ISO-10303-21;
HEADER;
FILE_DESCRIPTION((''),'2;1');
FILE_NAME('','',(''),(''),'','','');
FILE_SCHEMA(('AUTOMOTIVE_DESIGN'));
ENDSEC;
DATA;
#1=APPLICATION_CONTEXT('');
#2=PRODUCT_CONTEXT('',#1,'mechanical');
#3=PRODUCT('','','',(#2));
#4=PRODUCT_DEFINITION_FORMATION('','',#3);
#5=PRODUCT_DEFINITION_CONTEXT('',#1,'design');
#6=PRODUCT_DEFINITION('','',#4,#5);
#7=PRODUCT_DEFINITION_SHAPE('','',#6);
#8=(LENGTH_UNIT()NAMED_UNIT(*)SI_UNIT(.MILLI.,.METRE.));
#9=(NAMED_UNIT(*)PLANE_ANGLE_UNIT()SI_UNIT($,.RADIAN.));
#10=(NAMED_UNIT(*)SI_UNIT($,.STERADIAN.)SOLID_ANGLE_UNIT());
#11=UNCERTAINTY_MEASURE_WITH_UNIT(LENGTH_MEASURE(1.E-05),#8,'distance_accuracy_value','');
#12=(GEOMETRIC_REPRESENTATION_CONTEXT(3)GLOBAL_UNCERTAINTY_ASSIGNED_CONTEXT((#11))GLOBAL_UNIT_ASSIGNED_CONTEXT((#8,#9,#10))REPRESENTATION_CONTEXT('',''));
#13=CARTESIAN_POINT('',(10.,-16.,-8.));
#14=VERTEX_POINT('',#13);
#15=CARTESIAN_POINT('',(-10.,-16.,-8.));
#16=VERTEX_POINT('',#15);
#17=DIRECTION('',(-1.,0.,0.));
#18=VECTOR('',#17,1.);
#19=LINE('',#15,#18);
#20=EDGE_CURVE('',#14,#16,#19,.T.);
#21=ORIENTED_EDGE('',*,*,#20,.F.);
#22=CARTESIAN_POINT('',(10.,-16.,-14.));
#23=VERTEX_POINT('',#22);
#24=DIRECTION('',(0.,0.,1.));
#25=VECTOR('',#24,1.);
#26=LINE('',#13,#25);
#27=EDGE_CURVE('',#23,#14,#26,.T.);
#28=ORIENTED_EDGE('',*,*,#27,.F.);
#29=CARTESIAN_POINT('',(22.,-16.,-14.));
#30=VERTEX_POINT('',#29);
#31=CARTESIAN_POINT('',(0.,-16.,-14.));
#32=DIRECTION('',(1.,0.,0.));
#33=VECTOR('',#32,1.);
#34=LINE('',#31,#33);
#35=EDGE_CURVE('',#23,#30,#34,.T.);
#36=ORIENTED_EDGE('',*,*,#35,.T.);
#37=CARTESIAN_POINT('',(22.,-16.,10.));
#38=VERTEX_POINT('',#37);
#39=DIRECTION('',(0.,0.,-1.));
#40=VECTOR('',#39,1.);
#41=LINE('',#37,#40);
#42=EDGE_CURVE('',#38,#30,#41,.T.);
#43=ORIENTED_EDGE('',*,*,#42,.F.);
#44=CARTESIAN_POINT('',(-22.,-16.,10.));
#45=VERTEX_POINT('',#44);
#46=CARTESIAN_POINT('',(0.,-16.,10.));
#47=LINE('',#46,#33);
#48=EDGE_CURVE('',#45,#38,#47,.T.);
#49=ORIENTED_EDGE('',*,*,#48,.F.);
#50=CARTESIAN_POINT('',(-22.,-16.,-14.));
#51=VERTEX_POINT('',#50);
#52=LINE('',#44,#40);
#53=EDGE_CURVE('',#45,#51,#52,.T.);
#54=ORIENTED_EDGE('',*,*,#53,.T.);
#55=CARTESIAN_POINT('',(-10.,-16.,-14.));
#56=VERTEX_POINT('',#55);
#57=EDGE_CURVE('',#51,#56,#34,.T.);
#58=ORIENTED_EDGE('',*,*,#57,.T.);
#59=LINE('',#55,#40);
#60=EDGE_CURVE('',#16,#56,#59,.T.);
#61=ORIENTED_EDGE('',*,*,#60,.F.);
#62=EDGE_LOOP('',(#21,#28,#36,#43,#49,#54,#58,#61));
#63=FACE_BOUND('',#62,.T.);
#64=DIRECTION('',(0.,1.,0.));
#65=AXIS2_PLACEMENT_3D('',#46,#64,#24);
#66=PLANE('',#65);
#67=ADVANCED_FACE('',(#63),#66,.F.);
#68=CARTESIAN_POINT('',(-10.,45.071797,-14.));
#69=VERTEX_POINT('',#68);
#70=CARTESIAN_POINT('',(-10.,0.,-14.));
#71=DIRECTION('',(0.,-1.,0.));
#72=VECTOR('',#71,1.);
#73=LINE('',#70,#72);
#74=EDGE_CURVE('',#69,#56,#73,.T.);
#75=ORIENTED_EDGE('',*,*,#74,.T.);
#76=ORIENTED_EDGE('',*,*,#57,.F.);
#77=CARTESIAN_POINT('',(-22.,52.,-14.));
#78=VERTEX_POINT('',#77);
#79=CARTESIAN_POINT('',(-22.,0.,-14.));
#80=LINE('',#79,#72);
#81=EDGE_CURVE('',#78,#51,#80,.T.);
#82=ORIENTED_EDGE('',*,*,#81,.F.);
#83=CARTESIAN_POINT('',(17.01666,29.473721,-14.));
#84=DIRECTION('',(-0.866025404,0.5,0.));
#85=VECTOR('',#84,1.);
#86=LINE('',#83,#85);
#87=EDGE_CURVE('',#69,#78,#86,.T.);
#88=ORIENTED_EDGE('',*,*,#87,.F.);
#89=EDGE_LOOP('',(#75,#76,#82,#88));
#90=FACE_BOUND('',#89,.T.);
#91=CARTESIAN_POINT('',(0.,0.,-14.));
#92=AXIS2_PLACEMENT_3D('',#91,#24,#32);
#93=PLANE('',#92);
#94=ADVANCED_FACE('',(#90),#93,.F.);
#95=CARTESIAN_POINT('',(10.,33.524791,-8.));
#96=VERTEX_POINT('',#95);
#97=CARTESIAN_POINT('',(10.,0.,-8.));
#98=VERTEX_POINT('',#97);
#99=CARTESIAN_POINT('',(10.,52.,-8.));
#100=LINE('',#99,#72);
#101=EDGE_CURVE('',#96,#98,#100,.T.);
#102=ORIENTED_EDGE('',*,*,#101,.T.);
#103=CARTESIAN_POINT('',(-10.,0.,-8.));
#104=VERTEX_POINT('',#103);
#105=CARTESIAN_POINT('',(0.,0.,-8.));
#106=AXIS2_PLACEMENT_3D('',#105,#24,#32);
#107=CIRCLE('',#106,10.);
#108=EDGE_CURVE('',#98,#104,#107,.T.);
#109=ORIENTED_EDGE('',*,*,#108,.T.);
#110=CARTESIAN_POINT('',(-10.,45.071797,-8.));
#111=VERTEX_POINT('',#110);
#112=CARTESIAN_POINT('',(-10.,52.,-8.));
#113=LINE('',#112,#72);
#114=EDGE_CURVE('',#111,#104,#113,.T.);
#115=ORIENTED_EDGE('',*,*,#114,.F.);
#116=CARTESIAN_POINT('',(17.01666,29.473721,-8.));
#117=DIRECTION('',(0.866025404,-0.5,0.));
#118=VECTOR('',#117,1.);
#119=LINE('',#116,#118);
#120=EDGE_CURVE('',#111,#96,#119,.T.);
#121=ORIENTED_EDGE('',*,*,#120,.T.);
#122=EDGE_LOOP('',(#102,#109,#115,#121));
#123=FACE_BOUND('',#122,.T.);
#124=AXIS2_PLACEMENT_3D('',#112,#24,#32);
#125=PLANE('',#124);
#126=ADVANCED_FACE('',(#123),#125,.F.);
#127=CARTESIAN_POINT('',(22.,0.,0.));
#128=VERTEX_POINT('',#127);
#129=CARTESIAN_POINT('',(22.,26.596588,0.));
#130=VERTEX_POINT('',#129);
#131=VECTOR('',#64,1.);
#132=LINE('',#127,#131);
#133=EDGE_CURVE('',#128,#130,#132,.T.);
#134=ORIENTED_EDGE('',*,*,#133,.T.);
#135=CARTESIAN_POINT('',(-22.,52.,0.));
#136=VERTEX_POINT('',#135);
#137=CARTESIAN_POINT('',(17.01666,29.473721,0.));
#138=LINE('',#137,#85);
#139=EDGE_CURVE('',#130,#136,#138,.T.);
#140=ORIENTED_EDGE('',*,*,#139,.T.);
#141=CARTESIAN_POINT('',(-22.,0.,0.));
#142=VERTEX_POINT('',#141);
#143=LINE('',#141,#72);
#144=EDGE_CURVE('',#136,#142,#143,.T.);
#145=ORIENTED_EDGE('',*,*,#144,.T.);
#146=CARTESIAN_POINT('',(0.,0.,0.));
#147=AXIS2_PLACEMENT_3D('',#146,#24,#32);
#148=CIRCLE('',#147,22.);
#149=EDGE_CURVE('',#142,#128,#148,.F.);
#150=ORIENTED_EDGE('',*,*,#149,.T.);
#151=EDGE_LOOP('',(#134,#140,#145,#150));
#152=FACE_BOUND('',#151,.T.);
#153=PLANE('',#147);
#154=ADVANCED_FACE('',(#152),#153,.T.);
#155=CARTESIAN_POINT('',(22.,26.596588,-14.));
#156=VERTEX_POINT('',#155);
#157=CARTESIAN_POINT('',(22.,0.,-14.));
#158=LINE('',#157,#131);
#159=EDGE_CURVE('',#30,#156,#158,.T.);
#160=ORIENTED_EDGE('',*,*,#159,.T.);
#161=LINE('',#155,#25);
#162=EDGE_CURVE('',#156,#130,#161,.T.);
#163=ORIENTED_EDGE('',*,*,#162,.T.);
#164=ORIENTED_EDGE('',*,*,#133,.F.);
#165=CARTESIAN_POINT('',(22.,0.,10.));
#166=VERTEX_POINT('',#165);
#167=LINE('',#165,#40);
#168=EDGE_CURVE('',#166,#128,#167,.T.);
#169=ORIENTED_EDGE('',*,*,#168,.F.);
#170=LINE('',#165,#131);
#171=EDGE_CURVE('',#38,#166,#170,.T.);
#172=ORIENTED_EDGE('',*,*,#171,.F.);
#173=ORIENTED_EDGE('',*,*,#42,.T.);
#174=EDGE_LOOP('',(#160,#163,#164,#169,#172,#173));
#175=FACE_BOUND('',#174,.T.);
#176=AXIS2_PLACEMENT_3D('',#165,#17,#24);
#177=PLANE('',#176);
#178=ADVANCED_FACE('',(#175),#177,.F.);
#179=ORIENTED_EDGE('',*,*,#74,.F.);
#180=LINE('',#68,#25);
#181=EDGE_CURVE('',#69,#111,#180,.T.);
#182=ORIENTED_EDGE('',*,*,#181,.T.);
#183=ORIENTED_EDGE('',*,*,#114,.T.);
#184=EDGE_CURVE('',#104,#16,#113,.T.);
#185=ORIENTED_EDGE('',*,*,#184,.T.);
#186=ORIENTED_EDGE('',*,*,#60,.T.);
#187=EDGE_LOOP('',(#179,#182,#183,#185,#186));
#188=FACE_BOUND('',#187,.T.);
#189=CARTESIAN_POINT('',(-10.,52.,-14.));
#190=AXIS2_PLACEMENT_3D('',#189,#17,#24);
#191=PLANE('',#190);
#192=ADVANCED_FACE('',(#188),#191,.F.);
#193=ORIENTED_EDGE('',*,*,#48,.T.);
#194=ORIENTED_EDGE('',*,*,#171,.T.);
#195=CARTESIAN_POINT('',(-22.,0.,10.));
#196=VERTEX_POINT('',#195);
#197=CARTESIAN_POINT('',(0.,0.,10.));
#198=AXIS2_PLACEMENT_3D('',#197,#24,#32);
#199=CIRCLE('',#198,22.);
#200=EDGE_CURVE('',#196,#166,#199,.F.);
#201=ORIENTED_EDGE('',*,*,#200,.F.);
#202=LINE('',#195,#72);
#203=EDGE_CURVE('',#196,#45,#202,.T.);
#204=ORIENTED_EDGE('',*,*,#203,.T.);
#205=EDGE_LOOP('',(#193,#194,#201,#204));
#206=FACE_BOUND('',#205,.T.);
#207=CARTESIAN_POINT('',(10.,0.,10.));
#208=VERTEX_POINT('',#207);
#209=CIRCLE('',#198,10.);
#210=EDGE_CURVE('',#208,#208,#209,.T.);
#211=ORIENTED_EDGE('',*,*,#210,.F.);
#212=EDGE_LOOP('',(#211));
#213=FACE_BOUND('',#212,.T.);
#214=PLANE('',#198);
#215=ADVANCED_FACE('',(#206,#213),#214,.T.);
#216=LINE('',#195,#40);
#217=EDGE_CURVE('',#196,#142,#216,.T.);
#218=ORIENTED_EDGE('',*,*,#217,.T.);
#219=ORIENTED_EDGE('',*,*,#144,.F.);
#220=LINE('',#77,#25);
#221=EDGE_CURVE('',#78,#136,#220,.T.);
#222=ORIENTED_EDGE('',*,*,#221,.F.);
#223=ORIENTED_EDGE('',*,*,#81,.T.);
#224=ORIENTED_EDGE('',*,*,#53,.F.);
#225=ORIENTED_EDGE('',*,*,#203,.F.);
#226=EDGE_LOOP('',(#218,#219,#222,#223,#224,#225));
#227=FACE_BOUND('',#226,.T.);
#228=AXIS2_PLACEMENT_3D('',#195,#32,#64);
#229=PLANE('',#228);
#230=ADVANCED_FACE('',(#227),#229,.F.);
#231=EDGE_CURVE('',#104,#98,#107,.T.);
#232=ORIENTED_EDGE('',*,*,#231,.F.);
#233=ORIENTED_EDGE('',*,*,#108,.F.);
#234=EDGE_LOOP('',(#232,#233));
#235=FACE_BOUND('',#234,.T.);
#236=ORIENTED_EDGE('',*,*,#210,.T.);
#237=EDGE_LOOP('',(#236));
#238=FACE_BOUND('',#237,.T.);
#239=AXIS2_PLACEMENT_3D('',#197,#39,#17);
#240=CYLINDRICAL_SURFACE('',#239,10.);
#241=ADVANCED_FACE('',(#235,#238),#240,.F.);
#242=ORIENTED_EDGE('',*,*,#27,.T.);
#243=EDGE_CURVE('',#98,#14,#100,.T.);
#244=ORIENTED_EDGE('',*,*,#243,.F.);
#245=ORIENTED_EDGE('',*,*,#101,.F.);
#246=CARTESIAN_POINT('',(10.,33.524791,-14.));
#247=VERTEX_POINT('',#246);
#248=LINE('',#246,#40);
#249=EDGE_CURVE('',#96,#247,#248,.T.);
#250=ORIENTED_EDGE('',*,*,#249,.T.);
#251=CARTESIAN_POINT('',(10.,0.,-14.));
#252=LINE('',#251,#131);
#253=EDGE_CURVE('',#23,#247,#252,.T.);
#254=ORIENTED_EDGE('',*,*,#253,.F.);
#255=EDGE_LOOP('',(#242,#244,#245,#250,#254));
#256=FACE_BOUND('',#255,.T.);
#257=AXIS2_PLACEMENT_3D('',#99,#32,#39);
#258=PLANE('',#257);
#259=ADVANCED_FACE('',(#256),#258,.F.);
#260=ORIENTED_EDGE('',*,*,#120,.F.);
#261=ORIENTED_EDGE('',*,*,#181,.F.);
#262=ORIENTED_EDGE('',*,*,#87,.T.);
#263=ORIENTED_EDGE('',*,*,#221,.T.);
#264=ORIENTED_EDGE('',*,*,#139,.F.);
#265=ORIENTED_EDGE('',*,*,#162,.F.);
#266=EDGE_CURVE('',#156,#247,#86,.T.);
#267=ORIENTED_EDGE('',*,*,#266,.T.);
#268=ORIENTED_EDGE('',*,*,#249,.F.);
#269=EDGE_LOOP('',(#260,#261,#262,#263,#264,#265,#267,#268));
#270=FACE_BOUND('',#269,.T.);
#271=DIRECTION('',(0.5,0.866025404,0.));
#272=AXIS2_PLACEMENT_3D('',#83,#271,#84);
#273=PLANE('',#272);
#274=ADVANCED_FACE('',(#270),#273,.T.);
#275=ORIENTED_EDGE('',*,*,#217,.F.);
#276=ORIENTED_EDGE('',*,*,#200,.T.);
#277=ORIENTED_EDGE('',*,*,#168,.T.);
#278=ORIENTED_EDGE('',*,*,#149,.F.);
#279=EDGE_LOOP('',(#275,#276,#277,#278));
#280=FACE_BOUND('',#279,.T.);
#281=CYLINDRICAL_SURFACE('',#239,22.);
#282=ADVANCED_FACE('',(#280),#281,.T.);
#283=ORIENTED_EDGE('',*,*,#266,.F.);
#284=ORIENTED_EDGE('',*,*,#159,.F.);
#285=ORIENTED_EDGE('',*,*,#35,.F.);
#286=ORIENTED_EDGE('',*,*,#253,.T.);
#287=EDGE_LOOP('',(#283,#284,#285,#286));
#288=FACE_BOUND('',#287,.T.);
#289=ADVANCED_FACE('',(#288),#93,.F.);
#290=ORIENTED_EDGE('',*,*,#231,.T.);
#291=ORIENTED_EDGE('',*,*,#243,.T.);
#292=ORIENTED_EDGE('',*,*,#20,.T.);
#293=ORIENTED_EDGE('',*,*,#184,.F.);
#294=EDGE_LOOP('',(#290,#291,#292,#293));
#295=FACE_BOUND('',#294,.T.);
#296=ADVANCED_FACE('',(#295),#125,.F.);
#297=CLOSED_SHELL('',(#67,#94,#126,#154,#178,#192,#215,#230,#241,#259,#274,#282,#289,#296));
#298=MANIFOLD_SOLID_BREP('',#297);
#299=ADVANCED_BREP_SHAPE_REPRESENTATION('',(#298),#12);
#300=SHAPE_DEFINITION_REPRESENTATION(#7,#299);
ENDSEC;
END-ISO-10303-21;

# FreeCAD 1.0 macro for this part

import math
import FreeCAD as App
import Part
import Sketcher

V = App.Vector
Q = App.Units.Quantity


def add_polygon(sketch, points):
    """Adds a closed chain of lines whose ends are joined by coincident constraints."""
    first, n = sketch.GeometryCount, len(points)
    for a, b in zip(points, points[1:] + points[:1]):
        sketch.addGeometry(Part.LineSegment(App.Vector(*a, 0), App.Vector(*b, 0)), False)
    for i in range(n):
        sketch.addConstraint(Sketcher.Constraint("Coincident", first + i, 2, first + (i + 1) % n, 1))

doc = App.newDocument("Part")
params = doc.addObject("Spreadsheet::Sheet", "Params")
for row, (alias, value) in enumerate([
    ("sketch1_diameter", "20 mm"),
    ("sketch1_radius", "22 mm"),
    ("sketch1_height", "16 mm"),
    ("pad1_length", "10 mm"),
    ("sketch2_diameter", "20 mm"),
    ("sketch2_width", "44 mm"),
    ("sketch2_height", "68 mm"),
    ("pad2_length", "14 mm"),
    ("sketch3_width", "20 mm"),
    ("sketch3_height", "6 mm"),
], start=1):
    params.set(f"A{row}", alias)
    params.set(f"B{row}", "=" + value)
    params.setAlias(f"B{row}", alias)

body = doc.addObject("PartDesign::Body", "Body")

# Sketch on XY plane
sketch1 = body.newObject("Sketcher::SketchObject", "Sketch")
sketch1.AttachmentSupport = (doc.getObject("XY_Plane"), [""])
sketch1.MapMode = "FlatFace"
sketch1.addGeometry([
    Part.ArcOfCircle(Part.Circle(V(0, 0, 0), V(0, 0, 1), 22), math.radians(0), math.radians(180)),  # 0
    Part.LineSegment(V(-22, 0, 0), V(-22, -16, 0)),  # 1
    Part.LineSegment(V(-22, -16, 0), V(22, -16, 0)),  # 2
    Part.LineSegment(V(22, -16, 0), V(22, 0, 0)),  # 3
    Part.Circle(V(0, 0, 0), V(0, 0, 1), 10),  # 4
], False)
sketch1.addConstraint([
    Sketcher.Constraint("Tangent", 0, 2, 1, 1),
    Sketcher.Constraint("Coincident", 1, 2, 2, 1),
    Sketcher.Constraint("Coincident", 2, 2, 3, 1),
    Sketcher.Constraint("Tangent", 3, 2, 0, 1),
    Sketcher.Constraint("Vertical", 1),
    Sketcher.Constraint("Horizontal", 2),
    Sketcher.Constraint("Vertical", 3),
    Sketcher.Constraint("Coincident", 0, 3, -1, 1),
    Sketcher.Constraint("Coincident", 4, 3, -1, 1),
    Sketcher.Constraint("Diameter", 4, Q("20 mm")),
    Sketcher.Constraint("Radius", 0, Q("22 mm")),
    Sketcher.Constraint("DistanceY", 1, 2, 1, 1, Q("16 mm")),
])
sketch1.setExpression("Constraints[9]", "Params.sketch1_diameter")
sketch1.setExpression("Constraints[10]", "Params.sketch1_radius")
sketch1.setExpression("Constraints[11]", "Params.sketch1_height")
pad1 = body.newObject("PartDesign::Pad", "Pad")
pad1.Profile = sketch1
pad1.setExpression("Length", "Params.pad1_length")

# Sketch on XY plane
sketch2 = body.newObject("Sketcher::SketchObject", "Sketch001")
sketch2.AttachmentSupport = (doc.getObject("XY_Plane"), [""])
sketch2.MapMode = "FlatFace"
sketch2.AttachmentOffset = App.Placement(V(0, 0, -14), App.Rotation())
add_polygon(sketch2, [(-22, 52), (-22, -16), (22, -16), (22, 26.596588)])  # lines 0-3
sketch2.addGeometry(Part.Circle(V(0, 0, 0), V(0, 0, 1), 10), False)  # 4
sketch2.addConstraint([
    Sketcher.Constraint("Vertical", 0),
    Sketcher.Constraint("Horizontal", 1),
    Sketcher.Constraint("Vertical", 2),
    Sketcher.Constraint("Coincident", 4, 3, -1, 1),
    Sketcher.Constraint("Diameter", 4, Q("20 mm")),
    Sketcher.Constraint("DistanceX", 1, 1, 1, 2, Q("44 mm")),
    Sketcher.Constraint("DistanceY", 0, 2, 0, 1, Q("68 mm")),
    Sketcher.Constraint("Angle", 3, Q("150 deg")),
    Sketcher.Constraint("DistanceX", 0, 2, -1, 1, Q("22 mm")),
    Sketcher.Constraint("DistanceY", 0, 2, -1, 1, Q("16 mm")),
])
sketch2.setExpression("Constraints[8]", "Params.sketch2_diameter")
sketch2.setExpression("Constraints[9]", "Params.sketch2_width")
sketch2.setExpression("Constraints[10]", "Params.sketch2_height")
pad2 = body.newObject("PartDesign::Pad", "Pad001")
pad2.Profile = sketch2
pad2.setExpression("Length", "Params.pad2_length")

# Sketch on XZ plane
sketch3 = body.newObject("Sketcher::SketchObject", "Sketch002")
sketch3.AttachmentSupport = (doc.getObject("XZ_Plane"), [""])
sketch3.MapMode = "FlatFace"
sketch3.AttachmentOffset = App.Placement(V(0, 0, 16), App.Rotation())
add_polygon(sketch3, [(-10, -8), (-10, -14), (10, -14), (10, -8)])  # lines 0-3
sketch3.addConstraint([
    Sketcher.Constraint("Vertical", 0),
    Sketcher.Constraint("Horizontal", 1),
    Sketcher.Constraint("Vertical", 2),
    Sketcher.Constraint("Horizontal", 3),
    Sketcher.Constraint("DistanceX", 1, 1, 1, 2, Q("20 mm")),
    Sketcher.Constraint("DistanceY", 0, 2, 0, 1, Q("6 mm")),
    Sketcher.Constraint("DistanceX", 0, 2, -1, 1, Q("10 mm")),
    Sketcher.Constraint("DistanceY", 0, 2, -1, 1, Q("14 mm")),
])
sketch3.setExpression("Constraints[8]", "Params.sketch3_width")
sketch3.setExpression("Constraints[9]", "Params.sketch3_height")
pocket1 = body.newObject("PartDesign::Pocket", "Pocket")
pocket1.Profile = sketch3
pocket1.Type = "ThroughAll"

doc.recompute()
